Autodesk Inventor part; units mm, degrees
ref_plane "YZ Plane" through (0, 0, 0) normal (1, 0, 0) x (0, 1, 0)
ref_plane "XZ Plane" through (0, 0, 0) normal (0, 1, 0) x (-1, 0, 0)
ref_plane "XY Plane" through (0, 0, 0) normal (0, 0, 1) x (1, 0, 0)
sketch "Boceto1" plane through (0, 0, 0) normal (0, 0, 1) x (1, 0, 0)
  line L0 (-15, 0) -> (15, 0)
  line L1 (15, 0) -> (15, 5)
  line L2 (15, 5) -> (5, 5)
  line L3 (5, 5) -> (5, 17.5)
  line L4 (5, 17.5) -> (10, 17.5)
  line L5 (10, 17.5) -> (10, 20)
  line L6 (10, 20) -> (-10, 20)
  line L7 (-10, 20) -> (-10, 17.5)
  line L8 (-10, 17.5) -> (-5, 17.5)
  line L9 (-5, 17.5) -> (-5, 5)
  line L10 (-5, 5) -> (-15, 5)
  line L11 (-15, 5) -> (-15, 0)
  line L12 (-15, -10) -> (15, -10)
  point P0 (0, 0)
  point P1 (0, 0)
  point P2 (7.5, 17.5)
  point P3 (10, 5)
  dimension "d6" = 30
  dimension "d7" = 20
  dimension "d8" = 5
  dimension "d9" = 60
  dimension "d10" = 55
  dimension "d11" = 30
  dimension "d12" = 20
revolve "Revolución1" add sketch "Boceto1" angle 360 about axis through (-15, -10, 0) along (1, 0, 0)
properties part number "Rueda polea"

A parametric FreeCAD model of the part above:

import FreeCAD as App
import Part
import Sketcher

V = App.Vector


def add_polygon(sketch, points):
    """Adds a closed chain of lines whose ends are joined by coincident constraints."""
    first, n = sketch.GeometryCount, len(points)
    for a, b in zip(points, points[1:] + points[:1]):
        sketch.addGeometry(Part.LineSegment(App.Vector(*a, 0), App.Vector(*b, 0)), False)
    for i in range(n):
        sketch.addConstraint(Sketcher.Constraint("Coincident", first + i, 2, first + (i + 1) % n, 1))

doc = App.newDocument("Part")
body = doc.addObject("PartDesign::Body", "Body")

# Sketch on XY plane
sketch1 = doc.addObject("Sketcher::SketchObject", "Sketch")
body.addObject(sketch1)
sketch1.AttachmentSupport = (doc.XY_Plane, [""])
sketch1.MapMode = "FlatFace"
add_polygon(sketch1, [(-15, 5), (-15, 0), (15, 0), (15, 5), (5, 5), (5, 17.5), (10, 17.5), (10, 20), (-10, 20), (-10, 17.5), (-5, 17.5), (-5, 5)])  # lines 0-11
sketch1.addGeometry(Part.LineSegment(V(-15, -10, 0), V(15, -10, 0)), True)  # axis
sketch1.addConstraint(Sketcher.Constraint("Vertical", 0))
sketch1.addConstraint(Sketcher.Constraint("Horizontal", 1))
sketch1.addConstraint(Sketcher.Constraint("Vertical", 2))
sketch1.addConstraint(Sketcher.Constraint("Horizontal", 3))
sketch1.addConstraint(Sketcher.Constraint("Vertical", 4))
sketch1.addConstraint(Sketcher.Constraint("Horizontal", 5))
sketch1.addConstraint(Sketcher.Constraint("Vertical", 6))
sketch1.addConstraint(Sketcher.Constraint("Horizontal", 7))
sketch1.addConstraint(Sketcher.Constraint("Vertical", 8))
sketch1.addConstraint(Sketcher.Constraint("Horizontal", 9))
sketch1.addConstraint(Sketcher.Constraint("Vertical", 10))
sketch1.addConstraint(Sketcher.Constraint("Horizontal", 11))
sketch1.addConstraint(Sketcher.Constraint("Horizontal", 12))
sketch1.addConstraint(Sketcher.Constraint("Symmetric", 0, 2, 1, 2, -1, 1))
sketch1.addConstraint(Sketcher.Constraint("Symmetric", 5, 2, 8, 2, -2))
sketch1.addConstraint(Sketcher.Constraint("Symmetric", 3, 2, 10, 2, -2))
sketch1.addConstraint(Sketcher.Constraint("Vertical", 11, 2, 12, 1))
sketch1.addConstraint(Sketcher.Constraint("Vertical", 2, 2, 12, 2))
sketch1.addConstraint(Sketcher.Constraint("Equal", 9, 0))
sketch1.addConstraint(Sketcher.Constraint("DistanceX", 1, 1, 1, 2, 30.0))
sketch1.addConstraint(Sketcher.Constraint("DistanceX", 5, 1, 5, 2, 5.0))
sketch1.addConstraint(Sketcher.Constraint("DistanceX", 7, 2, 7, 1, 20.0))
sketch1.addConstraint(Sketcher.Constraint("DistanceY", -1, 1, 6, 2, 20.0))
sketch1.addConstraint(Sketcher.Constraint("DistanceY", 4, 1, 4, 2, 12.5))
sketch1.addConstraint(Sketcher.Constraint("DistanceY", 12, 1, -1, 1, 10.0))
revolution = doc.addObject("PartDesign::Revolution", "Revolution")
body.addObject(revolution)
revolution.Profile = sketch1
revolution.ReferenceAxis = (sketch1, ["Axis0"])
revolution.Angle = 360

doc.recompute()
